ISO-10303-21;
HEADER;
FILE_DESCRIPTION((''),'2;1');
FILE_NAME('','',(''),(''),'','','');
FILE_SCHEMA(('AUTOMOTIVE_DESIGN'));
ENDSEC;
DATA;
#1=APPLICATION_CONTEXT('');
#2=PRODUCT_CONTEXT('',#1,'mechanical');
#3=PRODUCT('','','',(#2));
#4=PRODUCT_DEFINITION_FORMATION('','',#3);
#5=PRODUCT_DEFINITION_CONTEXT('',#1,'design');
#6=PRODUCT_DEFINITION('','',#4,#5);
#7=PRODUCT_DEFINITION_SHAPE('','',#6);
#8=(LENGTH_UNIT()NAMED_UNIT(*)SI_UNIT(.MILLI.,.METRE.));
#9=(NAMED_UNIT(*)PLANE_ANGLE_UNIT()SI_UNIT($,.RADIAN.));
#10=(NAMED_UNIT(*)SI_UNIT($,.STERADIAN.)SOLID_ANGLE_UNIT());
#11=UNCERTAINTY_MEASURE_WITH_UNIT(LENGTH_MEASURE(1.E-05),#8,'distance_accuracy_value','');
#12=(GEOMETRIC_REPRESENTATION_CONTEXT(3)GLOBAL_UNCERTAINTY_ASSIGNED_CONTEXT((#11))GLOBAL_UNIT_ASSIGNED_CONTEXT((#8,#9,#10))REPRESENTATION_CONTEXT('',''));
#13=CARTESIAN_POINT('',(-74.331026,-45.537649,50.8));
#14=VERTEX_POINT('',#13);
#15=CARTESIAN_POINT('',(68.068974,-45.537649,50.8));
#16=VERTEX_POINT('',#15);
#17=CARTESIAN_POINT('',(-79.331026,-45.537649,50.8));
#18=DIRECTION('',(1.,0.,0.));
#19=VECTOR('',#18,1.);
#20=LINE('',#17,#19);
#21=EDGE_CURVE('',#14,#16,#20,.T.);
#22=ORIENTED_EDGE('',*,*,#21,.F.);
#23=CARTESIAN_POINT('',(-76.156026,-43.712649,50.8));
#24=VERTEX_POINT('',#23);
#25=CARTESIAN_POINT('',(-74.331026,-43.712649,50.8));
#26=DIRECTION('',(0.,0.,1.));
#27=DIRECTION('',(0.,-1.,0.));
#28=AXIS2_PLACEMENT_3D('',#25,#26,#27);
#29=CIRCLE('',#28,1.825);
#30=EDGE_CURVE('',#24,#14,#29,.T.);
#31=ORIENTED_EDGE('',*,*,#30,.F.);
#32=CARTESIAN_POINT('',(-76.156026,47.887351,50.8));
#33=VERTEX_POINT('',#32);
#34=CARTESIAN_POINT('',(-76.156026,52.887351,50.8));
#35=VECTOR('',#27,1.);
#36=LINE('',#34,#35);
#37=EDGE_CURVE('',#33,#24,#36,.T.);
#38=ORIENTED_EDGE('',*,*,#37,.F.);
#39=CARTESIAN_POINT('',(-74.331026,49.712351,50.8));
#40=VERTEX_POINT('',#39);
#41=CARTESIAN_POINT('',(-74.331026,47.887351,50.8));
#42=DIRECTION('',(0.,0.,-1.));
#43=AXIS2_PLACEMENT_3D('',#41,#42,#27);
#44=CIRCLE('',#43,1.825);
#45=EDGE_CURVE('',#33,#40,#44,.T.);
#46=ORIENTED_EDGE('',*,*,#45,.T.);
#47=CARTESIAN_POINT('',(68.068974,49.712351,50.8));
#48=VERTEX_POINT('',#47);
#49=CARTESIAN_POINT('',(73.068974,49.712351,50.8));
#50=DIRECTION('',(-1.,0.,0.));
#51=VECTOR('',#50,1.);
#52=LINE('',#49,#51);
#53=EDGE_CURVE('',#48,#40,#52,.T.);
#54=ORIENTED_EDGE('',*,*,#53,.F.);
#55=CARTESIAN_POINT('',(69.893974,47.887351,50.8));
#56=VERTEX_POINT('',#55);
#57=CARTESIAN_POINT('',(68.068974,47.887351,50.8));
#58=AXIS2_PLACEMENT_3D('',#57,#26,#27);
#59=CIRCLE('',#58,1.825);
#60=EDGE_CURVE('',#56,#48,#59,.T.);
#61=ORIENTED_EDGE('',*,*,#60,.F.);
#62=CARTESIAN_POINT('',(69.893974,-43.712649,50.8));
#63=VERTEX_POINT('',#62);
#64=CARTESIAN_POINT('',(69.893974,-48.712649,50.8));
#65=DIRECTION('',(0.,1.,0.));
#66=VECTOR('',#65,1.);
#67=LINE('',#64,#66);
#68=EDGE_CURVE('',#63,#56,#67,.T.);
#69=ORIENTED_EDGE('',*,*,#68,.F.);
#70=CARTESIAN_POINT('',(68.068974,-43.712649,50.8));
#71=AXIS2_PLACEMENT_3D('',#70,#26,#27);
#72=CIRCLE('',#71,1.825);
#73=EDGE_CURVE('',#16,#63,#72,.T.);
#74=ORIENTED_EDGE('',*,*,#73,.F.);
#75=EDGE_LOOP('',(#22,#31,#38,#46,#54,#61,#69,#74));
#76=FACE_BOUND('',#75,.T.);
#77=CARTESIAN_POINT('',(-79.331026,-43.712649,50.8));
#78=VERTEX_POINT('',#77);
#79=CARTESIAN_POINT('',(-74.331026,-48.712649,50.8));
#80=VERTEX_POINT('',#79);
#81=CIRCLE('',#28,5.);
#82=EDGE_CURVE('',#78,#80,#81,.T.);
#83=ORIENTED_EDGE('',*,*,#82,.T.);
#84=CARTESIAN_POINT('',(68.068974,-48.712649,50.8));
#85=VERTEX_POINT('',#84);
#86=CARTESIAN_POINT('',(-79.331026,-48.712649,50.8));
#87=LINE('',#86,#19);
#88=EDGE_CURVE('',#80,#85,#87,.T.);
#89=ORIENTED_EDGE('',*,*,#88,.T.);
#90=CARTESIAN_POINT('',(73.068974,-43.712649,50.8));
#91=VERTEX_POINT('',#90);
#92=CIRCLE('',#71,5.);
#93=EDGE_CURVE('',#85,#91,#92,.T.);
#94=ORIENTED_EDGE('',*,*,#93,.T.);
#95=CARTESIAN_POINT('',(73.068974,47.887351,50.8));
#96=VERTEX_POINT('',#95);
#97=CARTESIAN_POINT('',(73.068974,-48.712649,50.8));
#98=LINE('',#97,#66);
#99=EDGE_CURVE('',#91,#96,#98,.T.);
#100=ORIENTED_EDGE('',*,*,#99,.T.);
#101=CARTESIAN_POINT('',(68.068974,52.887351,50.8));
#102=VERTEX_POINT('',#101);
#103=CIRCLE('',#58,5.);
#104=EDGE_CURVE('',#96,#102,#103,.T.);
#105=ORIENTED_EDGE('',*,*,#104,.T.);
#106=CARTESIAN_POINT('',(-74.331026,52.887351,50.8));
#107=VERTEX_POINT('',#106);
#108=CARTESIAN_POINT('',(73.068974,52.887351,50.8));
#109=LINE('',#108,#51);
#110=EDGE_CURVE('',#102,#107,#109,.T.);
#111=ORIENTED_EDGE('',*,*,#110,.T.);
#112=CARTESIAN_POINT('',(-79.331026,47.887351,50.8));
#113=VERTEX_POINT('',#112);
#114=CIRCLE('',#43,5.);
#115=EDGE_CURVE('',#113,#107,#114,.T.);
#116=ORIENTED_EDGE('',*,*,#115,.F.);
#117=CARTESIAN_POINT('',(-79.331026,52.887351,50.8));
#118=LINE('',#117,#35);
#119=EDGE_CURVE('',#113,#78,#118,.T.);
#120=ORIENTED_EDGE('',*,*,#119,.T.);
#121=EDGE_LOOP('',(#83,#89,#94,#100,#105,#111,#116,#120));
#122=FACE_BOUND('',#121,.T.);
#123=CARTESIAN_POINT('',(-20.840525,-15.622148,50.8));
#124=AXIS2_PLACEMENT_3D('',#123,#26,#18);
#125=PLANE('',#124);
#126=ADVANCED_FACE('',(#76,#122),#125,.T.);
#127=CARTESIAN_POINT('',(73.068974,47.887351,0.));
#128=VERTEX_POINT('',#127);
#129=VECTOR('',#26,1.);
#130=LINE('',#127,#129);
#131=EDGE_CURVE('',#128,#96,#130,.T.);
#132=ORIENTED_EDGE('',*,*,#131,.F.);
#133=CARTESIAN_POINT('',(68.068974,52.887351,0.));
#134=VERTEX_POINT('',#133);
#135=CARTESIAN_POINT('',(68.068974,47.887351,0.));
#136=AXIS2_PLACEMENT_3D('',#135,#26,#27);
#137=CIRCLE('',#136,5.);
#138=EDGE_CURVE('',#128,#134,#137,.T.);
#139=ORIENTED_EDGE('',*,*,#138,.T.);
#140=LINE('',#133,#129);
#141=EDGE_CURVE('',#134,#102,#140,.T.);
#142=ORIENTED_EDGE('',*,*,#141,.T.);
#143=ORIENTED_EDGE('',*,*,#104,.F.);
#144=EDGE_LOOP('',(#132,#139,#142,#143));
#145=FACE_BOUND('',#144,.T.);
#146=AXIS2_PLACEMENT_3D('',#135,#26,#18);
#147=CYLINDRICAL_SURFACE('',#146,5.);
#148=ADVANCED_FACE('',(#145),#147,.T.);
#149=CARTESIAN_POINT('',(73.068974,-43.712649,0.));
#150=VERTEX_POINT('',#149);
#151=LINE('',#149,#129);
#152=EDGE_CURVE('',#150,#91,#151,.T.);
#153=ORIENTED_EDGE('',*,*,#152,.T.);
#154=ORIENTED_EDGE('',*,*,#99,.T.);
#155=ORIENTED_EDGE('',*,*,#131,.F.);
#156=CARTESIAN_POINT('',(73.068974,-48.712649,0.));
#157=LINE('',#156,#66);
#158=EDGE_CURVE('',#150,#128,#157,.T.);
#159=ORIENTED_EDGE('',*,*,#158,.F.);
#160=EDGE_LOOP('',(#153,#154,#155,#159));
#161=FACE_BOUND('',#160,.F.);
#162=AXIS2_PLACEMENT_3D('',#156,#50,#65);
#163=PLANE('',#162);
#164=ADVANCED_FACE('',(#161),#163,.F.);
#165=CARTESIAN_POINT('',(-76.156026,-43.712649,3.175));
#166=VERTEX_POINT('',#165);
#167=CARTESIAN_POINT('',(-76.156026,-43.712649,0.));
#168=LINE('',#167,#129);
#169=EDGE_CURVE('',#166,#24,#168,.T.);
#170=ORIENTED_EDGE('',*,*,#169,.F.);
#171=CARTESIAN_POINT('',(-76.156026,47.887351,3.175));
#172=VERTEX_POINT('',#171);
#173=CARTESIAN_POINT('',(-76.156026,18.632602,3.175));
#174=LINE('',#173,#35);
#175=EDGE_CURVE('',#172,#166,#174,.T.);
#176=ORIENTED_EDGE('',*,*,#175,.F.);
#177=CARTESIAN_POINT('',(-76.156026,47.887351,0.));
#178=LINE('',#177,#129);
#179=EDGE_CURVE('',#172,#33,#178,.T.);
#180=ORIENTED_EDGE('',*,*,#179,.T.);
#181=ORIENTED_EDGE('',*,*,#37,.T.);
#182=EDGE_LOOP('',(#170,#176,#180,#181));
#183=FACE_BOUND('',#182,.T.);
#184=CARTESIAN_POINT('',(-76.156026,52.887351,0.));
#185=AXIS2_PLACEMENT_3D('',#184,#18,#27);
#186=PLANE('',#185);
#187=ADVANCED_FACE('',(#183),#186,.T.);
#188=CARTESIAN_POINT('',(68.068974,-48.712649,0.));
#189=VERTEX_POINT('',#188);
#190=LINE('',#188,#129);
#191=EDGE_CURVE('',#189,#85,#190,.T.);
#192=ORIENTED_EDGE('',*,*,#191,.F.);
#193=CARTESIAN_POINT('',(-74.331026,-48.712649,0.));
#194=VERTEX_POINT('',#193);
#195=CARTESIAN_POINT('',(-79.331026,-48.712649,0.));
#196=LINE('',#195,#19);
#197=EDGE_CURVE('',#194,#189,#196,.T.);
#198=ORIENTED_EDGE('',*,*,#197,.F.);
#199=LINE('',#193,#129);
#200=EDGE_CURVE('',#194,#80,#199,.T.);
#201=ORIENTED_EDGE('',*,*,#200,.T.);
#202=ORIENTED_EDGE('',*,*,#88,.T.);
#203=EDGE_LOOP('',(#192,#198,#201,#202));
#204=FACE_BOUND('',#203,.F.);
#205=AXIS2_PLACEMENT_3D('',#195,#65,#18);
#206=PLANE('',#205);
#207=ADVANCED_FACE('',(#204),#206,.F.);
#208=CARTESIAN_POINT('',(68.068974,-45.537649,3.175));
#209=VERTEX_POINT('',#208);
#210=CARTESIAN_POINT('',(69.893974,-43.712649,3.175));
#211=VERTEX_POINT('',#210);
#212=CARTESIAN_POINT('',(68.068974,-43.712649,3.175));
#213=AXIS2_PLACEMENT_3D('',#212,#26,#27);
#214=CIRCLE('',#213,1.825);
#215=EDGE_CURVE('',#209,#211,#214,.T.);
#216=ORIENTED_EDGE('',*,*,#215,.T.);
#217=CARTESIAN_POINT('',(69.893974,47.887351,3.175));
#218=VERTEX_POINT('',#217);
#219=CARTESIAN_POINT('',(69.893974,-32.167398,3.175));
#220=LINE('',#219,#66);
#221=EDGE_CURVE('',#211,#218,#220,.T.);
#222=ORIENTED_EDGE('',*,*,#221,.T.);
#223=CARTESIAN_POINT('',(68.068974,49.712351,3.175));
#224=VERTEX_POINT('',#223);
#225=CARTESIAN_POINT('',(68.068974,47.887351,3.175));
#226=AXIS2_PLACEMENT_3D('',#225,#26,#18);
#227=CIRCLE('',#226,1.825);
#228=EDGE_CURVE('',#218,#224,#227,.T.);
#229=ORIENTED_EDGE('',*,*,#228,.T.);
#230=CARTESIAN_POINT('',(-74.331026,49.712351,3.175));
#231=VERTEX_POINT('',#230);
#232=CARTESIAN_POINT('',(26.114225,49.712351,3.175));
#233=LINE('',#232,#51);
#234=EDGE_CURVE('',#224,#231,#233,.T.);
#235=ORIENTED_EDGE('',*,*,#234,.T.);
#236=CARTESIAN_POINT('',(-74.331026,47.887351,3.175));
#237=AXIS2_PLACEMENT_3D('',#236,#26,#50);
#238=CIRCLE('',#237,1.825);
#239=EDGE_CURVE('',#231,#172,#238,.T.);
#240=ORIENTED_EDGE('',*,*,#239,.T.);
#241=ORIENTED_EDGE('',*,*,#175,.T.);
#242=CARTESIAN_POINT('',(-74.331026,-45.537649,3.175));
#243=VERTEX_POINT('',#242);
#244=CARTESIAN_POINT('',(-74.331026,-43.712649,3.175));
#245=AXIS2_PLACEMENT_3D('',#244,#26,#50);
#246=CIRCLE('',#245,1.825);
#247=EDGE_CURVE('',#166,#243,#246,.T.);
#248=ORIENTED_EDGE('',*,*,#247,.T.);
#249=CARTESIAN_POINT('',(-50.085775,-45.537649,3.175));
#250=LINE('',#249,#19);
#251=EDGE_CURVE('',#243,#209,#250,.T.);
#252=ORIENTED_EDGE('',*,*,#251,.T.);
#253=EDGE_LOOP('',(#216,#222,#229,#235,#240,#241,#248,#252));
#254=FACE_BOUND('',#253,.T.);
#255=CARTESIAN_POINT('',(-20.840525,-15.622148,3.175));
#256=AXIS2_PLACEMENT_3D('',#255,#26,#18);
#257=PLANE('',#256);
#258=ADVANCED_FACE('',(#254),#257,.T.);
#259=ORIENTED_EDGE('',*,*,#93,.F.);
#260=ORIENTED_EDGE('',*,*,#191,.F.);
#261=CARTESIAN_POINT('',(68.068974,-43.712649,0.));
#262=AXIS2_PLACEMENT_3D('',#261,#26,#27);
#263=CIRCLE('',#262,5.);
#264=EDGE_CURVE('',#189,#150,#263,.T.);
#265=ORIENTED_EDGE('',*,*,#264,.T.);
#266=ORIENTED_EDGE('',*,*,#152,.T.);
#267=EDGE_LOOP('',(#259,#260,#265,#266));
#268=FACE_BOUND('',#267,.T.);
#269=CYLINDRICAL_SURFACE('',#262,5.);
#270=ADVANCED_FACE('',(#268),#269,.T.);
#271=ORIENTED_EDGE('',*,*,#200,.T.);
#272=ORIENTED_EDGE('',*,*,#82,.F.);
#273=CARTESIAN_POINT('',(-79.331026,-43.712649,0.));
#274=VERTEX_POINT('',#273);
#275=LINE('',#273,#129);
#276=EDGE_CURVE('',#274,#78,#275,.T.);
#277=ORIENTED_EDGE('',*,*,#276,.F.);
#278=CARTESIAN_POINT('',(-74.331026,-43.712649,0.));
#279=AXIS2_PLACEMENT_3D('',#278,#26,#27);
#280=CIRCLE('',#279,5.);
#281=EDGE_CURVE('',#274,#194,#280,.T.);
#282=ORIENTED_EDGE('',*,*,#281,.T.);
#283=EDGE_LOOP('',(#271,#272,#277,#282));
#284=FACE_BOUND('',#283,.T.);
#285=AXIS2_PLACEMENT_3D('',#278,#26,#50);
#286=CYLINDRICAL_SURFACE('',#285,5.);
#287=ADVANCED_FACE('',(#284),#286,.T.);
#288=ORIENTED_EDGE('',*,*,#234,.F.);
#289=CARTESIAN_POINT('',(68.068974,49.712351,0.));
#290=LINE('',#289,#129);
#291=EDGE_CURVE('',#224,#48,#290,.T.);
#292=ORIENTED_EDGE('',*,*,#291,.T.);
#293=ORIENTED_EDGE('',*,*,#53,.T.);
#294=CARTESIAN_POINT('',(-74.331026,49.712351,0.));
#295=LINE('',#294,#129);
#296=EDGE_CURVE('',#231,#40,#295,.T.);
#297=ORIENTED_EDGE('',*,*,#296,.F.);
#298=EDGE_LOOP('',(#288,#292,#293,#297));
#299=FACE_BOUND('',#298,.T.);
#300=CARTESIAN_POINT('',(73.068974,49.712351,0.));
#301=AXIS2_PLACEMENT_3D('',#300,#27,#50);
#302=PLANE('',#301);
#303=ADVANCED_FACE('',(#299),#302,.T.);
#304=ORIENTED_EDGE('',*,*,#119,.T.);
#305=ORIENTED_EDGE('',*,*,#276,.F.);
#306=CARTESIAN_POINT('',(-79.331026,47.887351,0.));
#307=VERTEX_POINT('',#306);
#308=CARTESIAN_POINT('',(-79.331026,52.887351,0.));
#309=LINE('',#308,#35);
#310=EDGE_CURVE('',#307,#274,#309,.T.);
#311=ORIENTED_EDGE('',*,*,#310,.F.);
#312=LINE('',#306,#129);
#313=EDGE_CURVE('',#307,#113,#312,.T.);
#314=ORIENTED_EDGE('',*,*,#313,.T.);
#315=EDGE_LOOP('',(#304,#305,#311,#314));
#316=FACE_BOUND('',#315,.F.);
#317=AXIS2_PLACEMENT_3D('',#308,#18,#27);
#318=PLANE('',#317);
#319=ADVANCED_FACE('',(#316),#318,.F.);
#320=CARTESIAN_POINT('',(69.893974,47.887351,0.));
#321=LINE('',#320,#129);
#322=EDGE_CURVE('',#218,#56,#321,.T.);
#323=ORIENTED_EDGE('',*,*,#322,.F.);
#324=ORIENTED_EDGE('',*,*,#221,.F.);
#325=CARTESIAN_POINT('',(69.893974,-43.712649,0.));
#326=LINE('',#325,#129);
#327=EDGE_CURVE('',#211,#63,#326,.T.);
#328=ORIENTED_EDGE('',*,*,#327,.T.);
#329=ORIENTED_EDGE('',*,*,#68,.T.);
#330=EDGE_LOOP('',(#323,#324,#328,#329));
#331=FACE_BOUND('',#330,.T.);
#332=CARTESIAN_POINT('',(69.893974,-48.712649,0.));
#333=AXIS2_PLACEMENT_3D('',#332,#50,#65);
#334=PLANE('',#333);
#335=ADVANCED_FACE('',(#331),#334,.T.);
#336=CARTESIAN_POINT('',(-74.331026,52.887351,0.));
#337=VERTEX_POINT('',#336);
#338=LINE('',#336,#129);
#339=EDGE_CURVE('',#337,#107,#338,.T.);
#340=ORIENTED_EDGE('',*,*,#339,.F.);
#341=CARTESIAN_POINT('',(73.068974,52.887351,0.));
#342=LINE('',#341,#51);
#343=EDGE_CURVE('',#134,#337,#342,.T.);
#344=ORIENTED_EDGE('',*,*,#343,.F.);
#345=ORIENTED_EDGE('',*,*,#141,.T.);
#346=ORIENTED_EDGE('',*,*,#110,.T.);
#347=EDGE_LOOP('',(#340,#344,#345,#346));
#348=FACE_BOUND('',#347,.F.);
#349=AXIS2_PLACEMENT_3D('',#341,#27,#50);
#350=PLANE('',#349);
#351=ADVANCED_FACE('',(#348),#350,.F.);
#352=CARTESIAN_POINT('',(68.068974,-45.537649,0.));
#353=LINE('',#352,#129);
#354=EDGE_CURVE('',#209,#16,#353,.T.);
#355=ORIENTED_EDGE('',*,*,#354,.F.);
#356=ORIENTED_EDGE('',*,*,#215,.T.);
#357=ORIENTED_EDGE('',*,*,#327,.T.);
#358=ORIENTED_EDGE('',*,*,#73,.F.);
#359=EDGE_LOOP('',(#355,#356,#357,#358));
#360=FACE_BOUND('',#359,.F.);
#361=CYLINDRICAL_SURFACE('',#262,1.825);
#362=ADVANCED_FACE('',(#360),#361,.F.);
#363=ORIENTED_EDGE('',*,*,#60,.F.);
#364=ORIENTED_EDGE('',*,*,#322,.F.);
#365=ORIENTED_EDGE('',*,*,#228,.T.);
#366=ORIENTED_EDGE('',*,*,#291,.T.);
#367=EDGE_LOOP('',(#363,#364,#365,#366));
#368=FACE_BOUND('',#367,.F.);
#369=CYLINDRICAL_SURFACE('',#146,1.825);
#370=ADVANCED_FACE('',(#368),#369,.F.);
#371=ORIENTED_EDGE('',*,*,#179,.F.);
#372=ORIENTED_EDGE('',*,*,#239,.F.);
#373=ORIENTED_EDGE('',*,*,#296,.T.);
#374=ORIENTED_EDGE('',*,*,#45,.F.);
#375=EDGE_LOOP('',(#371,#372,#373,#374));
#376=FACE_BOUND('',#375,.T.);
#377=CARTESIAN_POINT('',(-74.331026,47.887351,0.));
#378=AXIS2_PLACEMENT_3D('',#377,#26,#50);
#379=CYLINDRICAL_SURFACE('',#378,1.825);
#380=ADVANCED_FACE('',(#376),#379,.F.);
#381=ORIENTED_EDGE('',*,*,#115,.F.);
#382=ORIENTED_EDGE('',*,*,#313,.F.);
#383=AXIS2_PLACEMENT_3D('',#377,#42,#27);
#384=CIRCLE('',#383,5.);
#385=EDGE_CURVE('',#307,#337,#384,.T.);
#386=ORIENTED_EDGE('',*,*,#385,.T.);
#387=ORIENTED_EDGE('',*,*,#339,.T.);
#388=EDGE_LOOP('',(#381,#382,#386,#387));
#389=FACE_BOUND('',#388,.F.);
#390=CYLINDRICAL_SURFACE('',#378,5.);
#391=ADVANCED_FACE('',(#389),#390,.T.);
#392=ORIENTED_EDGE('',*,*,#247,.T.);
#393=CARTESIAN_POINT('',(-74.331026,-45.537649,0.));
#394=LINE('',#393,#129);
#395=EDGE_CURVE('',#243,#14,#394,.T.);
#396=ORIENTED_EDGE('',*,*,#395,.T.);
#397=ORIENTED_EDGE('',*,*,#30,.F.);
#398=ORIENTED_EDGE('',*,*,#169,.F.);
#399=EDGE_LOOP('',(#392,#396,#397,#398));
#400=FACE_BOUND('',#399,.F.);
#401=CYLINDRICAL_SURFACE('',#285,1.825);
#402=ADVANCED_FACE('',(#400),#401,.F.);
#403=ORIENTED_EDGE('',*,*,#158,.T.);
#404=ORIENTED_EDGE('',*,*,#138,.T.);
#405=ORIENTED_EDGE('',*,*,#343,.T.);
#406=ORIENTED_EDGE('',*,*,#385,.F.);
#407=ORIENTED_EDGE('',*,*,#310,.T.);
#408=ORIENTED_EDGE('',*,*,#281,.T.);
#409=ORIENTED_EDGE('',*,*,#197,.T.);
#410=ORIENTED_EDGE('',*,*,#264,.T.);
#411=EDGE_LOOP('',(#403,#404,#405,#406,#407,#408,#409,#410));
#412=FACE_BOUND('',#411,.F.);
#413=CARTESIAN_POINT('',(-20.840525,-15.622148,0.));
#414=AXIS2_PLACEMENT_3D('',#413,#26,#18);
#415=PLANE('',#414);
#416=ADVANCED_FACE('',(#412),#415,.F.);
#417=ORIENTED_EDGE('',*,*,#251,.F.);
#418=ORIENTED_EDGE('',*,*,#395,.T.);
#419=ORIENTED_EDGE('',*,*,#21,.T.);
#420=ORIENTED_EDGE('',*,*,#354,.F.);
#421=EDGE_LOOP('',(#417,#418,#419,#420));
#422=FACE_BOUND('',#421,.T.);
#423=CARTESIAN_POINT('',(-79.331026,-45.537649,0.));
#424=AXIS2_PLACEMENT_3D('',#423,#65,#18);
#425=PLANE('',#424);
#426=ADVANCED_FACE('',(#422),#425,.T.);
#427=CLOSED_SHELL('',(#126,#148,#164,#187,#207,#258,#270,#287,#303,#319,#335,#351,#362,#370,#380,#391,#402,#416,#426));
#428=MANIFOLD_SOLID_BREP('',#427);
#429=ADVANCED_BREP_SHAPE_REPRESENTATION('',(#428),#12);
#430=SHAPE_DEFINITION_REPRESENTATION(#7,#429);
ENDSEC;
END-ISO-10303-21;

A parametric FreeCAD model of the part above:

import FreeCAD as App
import Part
import Sketcher
Q = App.Units.Quantity


def edges_at(feature, points):
    """Names of the edges that pass closest to the given points."""
    edges = feature.Shape.Edges
    near = lambda p: min(range(len(edges)), key=lambda i: edges[i].distToShape(Part.Vertex(*p))[0])
    return sorted({f"Edge{near(p) + 1}" for p in points})


def faces_at(feature, points):
    """Names of the faces that lie closest to the given points."""
    faces = feature.Shape.Faces
    near = lambda p: min(range(len(faces)), key=lambda i: faces[i].distToShape(Part.Vertex(*p))[0])
    return sorted({f"Face{near(p) + 1}" for p in points})

doc = App.newDocument("Part")
params = doc.addObject("Spreadsheet::Sheet", "Params")
for row, (alias, value) in enumerate([
    ("sketch1_width", "6 in"),
    ("sketch1_height", "4 in"),
    ("pad1_length", "2 in"),
    ("fillet_radius", "5 mm"),
    ("thickness_wall", "0.125 in"),
], start=1):
    params.set(f"A{row}", alias)
    params.set(f"B{row}", "=" + value)
    params.setAlias(f"B{row}", alias)

body = doc.addObject("PartDesign::Body", "Body")

sketch1 = body.newObject("Sketcher::SketchObject", "Sketch")
sketch1.AttachmentSupport = (doc.getObject("XY_Plane"), [""])
sketch1.MapMode = "FlatFace"
sketch1.addGeometry([
    Part.LineSegment(App.Vector(-79.331026, 52.887351, 0), App.Vector(-79.331026, -48.712649, 0)),
    Part.LineSegment(App.Vector(-79.331026, -48.712649, 0), App.Vector(73.068974, -48.712649, 0)),
    Part.LineSegment(App.Vector(73.068974, -48.712649, 0), App.Vector(73.068974, 52.887351, 0)),
    Part.LineSegment(App.Vector(73.068974, 52.887351, 0), App.Vector(-79.331026, 52.887351, 0)),
], False)
sketch1.addConstraint([
    Sketcher.Constraint("Coincident", 0, 2, 1, 1),
    Sketcher.Constraint("Coincident", 1, 2, 2, 1),
    Sketcher.Constraint("Coincident", 2, 2, 3, 1),
    Sketcher.Constraint("Coincident", 3, 2, 0, 1),
    Sketcher.Constraint("Vertical", 0),
    Sketcher.Constraint("Horizontal", 1),
    Sketcher.Constraint("Vertical", 2),
    Sketcher.Constraint("Horizontal", 3),
    Sketcher.Constraint("DistanceX", 1, 1, 1, 2, Q("6 in")),
    Sketcher.Constraint("DistanceY", 0, 2, 0, 1, Q("4 in")),
    Sketcher.Constraint("DistanceY", 0, 2, -1, 1, 48.712649),
    Sketcher.Constraint("DistanceX", 0, 2, -1, 1, 79.331026),
])
sketch1.setExpression("Constraints[8]", "Params.sketch1_width")
sketch1.setExpression("Constraints[9]", "Params.sketch1_height")
pad1 = body.newObject("PartDesign::Pad", "Pad")
pad1.Profile = sketch1
pad1.setExpression("Length", "Params.pad1_length")
doc.recompute()

fillet = body.newObject("PartDesign::Fillet", "Fillet")
fillet.Base = (pad1, edges_at(pad1, [
    (-79.331, -48.713, 25.4),
    (73.069, -48.713, 25.4),
    (73.069, 52.887, 25.4),
    (-79.331, 52.887, 25.4),
]))
fillet.setExpression("Radius", "Params.fillet_radius")
doc.recompute()

thickness = body.newObject("PartDesign::Thickness", "Thickness")
thickness.Base = (fillet, faces_at(fillet, [(-3.131, 2.087, 50.8)]))
thickness.setExpression("Value", "Params.thickness_wall")
thickness.Reversed = True
thickness.Join = "Arc"

doc.recompute()
